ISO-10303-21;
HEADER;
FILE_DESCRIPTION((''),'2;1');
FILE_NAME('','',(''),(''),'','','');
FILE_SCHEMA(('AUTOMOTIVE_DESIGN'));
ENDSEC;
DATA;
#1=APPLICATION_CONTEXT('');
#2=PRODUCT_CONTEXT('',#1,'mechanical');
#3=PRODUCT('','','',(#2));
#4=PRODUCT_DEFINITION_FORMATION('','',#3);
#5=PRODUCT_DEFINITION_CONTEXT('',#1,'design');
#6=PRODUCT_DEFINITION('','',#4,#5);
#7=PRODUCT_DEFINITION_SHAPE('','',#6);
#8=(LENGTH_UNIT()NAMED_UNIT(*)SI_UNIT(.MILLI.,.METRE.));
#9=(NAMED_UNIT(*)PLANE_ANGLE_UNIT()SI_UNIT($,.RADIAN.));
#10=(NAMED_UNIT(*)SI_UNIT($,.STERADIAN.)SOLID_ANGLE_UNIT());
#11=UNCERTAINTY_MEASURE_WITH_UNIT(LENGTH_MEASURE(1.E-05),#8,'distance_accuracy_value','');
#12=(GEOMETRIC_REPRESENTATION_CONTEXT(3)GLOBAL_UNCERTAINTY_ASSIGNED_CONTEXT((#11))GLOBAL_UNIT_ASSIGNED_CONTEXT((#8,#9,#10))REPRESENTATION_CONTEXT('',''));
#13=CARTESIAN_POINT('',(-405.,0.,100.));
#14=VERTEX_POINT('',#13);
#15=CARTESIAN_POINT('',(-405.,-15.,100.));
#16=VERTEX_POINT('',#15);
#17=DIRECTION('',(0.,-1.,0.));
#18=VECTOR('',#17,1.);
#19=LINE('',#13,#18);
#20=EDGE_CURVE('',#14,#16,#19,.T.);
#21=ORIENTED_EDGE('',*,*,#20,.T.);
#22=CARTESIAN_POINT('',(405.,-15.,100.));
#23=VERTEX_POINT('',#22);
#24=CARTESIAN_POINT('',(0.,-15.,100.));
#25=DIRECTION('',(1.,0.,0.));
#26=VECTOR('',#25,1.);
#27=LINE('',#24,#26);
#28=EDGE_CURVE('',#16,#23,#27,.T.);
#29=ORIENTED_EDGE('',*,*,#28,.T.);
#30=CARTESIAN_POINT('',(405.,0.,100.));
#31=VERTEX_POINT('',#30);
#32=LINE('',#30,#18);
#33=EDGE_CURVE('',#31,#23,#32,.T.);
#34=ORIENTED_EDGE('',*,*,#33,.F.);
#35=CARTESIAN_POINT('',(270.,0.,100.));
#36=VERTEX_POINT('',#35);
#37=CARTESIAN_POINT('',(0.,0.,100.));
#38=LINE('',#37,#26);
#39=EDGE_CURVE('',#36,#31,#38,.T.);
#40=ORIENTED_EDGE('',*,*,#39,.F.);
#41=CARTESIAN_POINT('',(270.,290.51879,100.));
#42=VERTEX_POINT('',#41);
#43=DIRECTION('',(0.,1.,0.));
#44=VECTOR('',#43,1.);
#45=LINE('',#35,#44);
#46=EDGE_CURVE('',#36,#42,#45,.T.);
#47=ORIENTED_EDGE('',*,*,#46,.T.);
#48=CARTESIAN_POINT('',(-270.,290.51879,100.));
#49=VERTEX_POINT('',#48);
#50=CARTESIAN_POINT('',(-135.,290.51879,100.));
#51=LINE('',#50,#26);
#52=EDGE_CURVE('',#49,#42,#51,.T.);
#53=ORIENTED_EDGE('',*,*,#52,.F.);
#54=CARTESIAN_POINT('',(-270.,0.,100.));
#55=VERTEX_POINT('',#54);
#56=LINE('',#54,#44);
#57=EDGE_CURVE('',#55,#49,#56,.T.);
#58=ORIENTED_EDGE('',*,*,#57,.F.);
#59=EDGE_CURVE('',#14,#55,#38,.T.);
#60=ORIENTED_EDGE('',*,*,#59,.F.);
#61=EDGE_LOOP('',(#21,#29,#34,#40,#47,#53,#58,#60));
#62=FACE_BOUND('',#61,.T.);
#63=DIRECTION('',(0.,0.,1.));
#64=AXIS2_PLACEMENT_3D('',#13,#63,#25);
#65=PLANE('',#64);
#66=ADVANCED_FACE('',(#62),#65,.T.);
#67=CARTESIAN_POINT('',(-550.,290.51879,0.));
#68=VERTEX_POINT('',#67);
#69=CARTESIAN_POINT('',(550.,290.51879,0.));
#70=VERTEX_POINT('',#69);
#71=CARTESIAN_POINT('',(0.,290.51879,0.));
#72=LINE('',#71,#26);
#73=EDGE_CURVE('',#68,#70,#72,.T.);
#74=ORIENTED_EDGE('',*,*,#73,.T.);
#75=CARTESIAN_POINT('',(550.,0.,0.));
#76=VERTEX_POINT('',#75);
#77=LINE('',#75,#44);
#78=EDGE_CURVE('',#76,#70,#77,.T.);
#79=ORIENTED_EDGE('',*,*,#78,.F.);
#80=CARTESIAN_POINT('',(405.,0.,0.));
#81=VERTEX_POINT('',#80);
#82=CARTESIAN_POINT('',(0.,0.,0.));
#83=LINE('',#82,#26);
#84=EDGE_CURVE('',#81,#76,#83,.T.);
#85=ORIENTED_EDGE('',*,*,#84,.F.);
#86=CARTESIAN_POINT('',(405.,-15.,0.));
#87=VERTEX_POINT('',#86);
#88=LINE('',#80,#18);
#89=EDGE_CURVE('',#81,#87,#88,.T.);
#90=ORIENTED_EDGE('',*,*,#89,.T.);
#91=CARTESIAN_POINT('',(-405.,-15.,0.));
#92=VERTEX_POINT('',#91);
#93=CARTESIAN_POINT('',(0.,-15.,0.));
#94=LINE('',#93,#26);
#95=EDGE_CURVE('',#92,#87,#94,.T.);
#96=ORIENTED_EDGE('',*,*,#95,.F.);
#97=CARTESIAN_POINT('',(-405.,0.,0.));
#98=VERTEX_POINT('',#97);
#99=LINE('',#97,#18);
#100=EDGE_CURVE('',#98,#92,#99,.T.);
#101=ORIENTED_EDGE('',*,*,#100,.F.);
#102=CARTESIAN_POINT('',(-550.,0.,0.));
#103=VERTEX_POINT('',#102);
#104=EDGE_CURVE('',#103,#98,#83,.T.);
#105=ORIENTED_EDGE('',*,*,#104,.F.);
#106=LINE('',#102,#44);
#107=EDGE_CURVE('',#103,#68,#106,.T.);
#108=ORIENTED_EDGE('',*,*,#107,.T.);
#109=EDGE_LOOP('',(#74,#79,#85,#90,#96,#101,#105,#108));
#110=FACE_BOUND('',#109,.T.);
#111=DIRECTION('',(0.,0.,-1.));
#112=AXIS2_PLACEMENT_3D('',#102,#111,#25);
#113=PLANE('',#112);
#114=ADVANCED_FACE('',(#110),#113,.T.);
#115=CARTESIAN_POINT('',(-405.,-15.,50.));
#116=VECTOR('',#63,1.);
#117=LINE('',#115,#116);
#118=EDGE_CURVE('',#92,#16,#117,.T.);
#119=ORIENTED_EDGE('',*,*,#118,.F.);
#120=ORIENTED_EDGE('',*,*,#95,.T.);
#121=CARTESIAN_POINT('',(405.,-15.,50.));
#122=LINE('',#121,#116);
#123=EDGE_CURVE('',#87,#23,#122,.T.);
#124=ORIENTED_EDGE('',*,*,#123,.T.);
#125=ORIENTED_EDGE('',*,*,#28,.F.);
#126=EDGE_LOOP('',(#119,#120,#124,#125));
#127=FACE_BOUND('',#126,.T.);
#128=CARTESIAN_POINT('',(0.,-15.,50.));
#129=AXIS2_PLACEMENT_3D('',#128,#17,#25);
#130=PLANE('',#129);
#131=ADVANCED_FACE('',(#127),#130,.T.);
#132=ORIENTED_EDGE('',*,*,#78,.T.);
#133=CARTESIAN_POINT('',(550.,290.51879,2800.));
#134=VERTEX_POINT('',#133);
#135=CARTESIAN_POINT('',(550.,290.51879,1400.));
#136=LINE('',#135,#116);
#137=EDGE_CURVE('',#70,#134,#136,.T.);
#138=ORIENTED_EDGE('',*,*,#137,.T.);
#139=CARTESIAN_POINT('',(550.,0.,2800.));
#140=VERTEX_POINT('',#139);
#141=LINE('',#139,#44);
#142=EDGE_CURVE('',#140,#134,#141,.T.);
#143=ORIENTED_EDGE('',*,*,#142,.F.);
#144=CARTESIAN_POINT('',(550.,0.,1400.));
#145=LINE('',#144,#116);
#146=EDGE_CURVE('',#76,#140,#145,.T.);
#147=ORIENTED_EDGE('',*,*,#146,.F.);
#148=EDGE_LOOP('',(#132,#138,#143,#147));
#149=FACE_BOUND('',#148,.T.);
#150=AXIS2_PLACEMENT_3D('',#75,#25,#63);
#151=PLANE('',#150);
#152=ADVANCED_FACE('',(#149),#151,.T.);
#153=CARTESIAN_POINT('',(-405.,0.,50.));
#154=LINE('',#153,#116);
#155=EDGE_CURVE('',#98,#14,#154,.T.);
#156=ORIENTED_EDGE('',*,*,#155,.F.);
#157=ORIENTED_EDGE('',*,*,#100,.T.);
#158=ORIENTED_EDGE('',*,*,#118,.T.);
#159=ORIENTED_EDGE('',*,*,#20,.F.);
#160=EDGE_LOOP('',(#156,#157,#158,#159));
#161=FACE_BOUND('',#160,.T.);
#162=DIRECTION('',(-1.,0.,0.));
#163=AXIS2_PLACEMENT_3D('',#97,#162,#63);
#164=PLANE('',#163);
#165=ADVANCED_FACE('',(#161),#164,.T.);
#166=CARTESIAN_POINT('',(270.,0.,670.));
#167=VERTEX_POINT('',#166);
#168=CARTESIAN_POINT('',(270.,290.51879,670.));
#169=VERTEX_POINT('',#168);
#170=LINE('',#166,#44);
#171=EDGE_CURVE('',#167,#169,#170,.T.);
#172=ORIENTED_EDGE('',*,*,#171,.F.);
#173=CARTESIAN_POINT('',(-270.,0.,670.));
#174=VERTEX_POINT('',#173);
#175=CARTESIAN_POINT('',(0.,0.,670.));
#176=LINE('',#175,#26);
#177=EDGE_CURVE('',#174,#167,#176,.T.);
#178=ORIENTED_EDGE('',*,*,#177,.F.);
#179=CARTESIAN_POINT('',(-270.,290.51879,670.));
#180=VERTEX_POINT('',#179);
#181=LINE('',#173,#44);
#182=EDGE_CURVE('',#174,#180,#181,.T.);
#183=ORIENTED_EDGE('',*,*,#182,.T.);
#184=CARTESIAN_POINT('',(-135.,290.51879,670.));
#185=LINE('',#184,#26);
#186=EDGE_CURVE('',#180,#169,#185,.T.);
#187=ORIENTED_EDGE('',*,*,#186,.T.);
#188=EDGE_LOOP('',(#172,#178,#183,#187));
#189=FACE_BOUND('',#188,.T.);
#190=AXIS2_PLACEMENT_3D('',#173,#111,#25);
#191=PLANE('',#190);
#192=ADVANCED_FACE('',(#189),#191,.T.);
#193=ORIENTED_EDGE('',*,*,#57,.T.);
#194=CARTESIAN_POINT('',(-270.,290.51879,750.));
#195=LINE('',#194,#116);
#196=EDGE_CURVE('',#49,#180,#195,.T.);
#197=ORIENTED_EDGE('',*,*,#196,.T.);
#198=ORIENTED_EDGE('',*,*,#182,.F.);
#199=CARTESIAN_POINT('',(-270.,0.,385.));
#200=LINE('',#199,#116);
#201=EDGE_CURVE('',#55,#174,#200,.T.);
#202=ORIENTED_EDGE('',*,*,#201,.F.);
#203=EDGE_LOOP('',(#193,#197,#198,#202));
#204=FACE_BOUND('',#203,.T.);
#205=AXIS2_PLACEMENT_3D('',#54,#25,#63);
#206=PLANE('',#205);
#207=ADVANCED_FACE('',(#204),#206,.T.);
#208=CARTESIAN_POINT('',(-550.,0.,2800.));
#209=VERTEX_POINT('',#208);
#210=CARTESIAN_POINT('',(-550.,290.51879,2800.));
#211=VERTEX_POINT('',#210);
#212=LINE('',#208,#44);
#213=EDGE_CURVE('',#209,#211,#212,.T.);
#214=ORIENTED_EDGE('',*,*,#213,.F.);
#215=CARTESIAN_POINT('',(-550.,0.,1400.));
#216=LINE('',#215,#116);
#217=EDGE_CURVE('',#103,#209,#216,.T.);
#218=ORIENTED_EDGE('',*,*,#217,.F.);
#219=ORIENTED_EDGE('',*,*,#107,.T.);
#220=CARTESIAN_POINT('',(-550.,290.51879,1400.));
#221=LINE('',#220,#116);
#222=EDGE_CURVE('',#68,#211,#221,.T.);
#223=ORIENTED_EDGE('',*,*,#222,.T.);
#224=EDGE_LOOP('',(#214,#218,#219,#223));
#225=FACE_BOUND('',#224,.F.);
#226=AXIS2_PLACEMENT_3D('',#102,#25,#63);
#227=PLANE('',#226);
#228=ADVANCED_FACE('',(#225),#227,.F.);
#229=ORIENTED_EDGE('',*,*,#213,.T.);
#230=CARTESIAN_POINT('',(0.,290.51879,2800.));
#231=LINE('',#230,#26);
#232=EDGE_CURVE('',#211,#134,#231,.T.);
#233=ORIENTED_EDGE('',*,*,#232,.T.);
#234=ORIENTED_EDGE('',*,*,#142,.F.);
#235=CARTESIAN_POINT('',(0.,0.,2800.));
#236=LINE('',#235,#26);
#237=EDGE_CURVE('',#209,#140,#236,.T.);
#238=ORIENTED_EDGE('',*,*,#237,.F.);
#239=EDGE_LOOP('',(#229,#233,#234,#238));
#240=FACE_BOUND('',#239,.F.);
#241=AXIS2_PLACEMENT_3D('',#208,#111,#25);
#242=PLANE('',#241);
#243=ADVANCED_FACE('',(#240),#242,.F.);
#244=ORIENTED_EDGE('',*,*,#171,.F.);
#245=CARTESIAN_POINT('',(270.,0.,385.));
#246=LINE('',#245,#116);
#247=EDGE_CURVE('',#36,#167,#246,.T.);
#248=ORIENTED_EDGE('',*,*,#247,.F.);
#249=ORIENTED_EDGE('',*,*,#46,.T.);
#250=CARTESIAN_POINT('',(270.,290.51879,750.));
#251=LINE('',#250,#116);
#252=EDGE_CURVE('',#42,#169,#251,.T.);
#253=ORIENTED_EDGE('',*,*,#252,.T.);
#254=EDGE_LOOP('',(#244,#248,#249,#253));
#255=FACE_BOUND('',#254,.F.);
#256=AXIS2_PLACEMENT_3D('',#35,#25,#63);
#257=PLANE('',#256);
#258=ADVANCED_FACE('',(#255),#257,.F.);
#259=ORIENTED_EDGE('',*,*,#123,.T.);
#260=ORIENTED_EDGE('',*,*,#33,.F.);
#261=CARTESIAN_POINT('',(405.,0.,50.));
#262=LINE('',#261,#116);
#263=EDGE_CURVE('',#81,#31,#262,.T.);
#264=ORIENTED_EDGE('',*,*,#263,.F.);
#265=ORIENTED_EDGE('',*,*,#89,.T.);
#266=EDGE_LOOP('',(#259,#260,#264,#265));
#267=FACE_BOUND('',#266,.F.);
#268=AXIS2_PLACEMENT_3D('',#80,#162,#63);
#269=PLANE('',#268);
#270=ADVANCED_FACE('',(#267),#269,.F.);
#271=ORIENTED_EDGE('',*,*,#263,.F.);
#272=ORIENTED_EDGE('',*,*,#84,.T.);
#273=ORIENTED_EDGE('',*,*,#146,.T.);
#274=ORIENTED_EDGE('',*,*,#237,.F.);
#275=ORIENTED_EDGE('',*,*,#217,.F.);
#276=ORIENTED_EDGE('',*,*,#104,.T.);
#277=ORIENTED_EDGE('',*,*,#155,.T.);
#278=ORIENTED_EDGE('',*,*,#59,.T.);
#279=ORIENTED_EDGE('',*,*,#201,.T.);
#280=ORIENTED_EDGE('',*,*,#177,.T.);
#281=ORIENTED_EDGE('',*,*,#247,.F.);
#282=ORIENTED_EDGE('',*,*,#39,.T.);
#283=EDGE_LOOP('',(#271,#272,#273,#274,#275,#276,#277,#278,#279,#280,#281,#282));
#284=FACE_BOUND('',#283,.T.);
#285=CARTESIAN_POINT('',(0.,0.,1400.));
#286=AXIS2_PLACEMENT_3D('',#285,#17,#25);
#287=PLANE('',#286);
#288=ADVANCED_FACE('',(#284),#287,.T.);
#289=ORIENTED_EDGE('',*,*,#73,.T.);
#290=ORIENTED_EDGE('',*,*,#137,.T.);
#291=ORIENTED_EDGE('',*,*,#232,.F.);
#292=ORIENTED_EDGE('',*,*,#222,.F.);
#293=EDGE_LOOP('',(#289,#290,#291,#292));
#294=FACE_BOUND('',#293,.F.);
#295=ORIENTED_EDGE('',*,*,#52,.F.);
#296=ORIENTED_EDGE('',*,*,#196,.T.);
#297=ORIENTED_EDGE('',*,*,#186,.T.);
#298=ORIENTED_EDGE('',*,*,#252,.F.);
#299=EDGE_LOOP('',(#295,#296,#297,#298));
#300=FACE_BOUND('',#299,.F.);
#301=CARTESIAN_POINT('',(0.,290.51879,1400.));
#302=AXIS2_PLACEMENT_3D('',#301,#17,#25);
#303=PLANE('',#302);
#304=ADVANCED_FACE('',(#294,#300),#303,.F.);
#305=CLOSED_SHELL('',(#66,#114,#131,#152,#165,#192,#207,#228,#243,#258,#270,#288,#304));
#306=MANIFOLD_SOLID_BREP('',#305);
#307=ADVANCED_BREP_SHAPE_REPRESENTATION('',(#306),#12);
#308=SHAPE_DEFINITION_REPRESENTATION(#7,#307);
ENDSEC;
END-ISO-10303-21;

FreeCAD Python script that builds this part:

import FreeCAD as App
import Part
import Sketcher
from FreeCAD import Vector


def add_polygon(sketch, points):
    """Adds a closed chain of lines whose ends are joined by coincident constraints."""
    first, n = sketch.GeometryCount, len(points)
    for a, b in zip(points, points[1:] + points[:1]):
        sketch.addGeometry(Part.LineSegment(App.Vector(*a, 0), App.Vector(*b, 0)), False)
    for i in range(n):
        sketch.addConstraint(Sketcher.Constraint("Coincident", first + i, 2, first + (i + 1) % n, 1))

doc = App.newDocument("Part")
params = doc.addObject("Spreadsheet::Sheet", "Params")
for row, (alias, value) in enumerate([
    ("sketch1_width", "1100 mm"),
    ("sketch1_height", "2800 mm"),
    ("pad1_length", "290.51879 mm"),
    ("sketch2_width", "810 mm"),
    ("sketch2_height", "100 mm"),
    ("pad2_length", "15 mm"),
    ("sketch3_width", "540 mm"),
    ("sketch3_height", "570 mm"),
    ("pocket1_length", "300 mm"),
], start=1):
    params.set(f"A{row}", alias)
    params.set(f"B{row}", "=" + value)
    params.setAlias(f"B{row}", alias)

body = doc.addObject("PartDesign::Body", "Body")

sketch1 = body.newObject("Sketcher::SketchObject", "Sketch")
sketch1.AttachmentSupport = (doc.getObject("XZ_Plane"), [""])
sketch1.MapMode = "FlatFace"
add_polygon(sketch1, [(-550, 2800), (-550, 0), (550, 0), (550, 2800)])
sketch1.addConstraint(Sketcher.Constraint("Vertical", 0))
sketch1.addConstraint(Sketcher.Constraint("Horizontal", 1))
sketch1.addConstraint(Sketcher.Constraint("Vertical", 2))
sketch1.addConstraint(Sketcher.Constraint("Horizontal", 3))
sketch1.addConstraint(Sketcher.Constraint("Symmetric", 0, 2, 1, 2, -1, 1))
sketch1.addConstraint(Sketcher.Constraint("DistanceX", 1, 1, 1, 2, 1100.0))
sketch1.addConstraint(Sketcher.Constraint("DistanceY", 0, 2, 0, 1, 2800.0))
sketch1.setExpression("Constraints[9]", "Params.sketch1_width")
sketch1.setExpression("Constraints[10]", "Params.sketch1_height")
pad1 = body.newObject("PartDesign::Pad", "Pad")
pad1.Profile = sketch1
pad1.setExpression("Length", "Params.pad1_length")
pad1.Reversed = True

sketch2 = body.newObject("Sketcher::SketchObject", "Sketch001")
sketch2.AttachmentSupport = (doc.getObject("XZ_Plane"), [""])
sketch2.MapMode = "FlatFace"
add_polygon(sketch2, [(-405, 100), (-405, 0), (405, 0), (405, 100)])
sketch2.addConstraint(Sketcher.Constraint("Vertical", 0))
sketch2.addConstraint(Sketcher.Constraint("Horizontal", 1))
sketch2.addConstraint(Sketcher.Constraint("Vertical", 2))
sketch2.addConstraint(Sketcher.Constraint("Horizontal", 3))
sketch2.addConstraint(Sketcher.Constraint("Symmetric", 0, 2, 1, 2, -1, 1))
sketch2.addConstraint(Sketcher.Constraint("DistanceX", 1, 1, 1, 2, 810.0))
sketch2.addConstraint(Sketcher.Constraint("DistanceY", 0, 2, 0, 1, 100.0))
sketch2.setExpression("Constraints[9]", "Params.sketch2_width")
sketch2.setExpression("Constraints[10]", "Params.sketch2_height")
pad2 = body.newObject("PartDesign::Pad", "Pad001")
pad2.Profile = sketch2
pad2.setExpression("Length", "Params.pad2_length")

sketch3 = body.newObject("Sketcher::SketchObject", "Sketch002")
sketch3.AttachmentSupport = (doc.getObject("XZ_Plane"), [""])
sketch3.MapMode = "FlatFace"
add_polygon(sketch3, [(-270, 670), (-270, 100), (270, 100), (270, 670)])
sketch3.addConstraint(Sketcher.Constraint("Vertical", 0))
sketch3.addConstraint(Sketcher.Constraint("Horizontal", 1))
sketch3.addConstraint(Sketcher.Constraint("Vertical", 2))
sketch3.addConstraint(Sketcher.Constraint("Horizontal", 3))
sketch3.addConstraint(Sketcher.Constraint("DistanceX", 1, 1, 1, 2, 540.0))
sketch3.addConstraint(Sketcher.Constraint("DistanceY", 0, 2, 0, 1, 570.0))
sketch3.addConstraint(Sketcher.Constraint("DistanceX", 0, 2, -1, 1, 270.0))
sketch3.addConstraint(Sketcher.Constraint("DistanceY", -1, 1, 0, 2, 100.0))
sketch3.setExpression("Constraints[8]", "Params.sketch3_width")
sketch3.setExpression("Constraints[9]", "Params.sketch3_height")
pocket1 = body.newObject("PartDesign::Pocket", "Pocket")
pocket1.Profile = sketch3
pocket1.setExpression("Length", "Params.pocket1_length")

doc.recompute()
